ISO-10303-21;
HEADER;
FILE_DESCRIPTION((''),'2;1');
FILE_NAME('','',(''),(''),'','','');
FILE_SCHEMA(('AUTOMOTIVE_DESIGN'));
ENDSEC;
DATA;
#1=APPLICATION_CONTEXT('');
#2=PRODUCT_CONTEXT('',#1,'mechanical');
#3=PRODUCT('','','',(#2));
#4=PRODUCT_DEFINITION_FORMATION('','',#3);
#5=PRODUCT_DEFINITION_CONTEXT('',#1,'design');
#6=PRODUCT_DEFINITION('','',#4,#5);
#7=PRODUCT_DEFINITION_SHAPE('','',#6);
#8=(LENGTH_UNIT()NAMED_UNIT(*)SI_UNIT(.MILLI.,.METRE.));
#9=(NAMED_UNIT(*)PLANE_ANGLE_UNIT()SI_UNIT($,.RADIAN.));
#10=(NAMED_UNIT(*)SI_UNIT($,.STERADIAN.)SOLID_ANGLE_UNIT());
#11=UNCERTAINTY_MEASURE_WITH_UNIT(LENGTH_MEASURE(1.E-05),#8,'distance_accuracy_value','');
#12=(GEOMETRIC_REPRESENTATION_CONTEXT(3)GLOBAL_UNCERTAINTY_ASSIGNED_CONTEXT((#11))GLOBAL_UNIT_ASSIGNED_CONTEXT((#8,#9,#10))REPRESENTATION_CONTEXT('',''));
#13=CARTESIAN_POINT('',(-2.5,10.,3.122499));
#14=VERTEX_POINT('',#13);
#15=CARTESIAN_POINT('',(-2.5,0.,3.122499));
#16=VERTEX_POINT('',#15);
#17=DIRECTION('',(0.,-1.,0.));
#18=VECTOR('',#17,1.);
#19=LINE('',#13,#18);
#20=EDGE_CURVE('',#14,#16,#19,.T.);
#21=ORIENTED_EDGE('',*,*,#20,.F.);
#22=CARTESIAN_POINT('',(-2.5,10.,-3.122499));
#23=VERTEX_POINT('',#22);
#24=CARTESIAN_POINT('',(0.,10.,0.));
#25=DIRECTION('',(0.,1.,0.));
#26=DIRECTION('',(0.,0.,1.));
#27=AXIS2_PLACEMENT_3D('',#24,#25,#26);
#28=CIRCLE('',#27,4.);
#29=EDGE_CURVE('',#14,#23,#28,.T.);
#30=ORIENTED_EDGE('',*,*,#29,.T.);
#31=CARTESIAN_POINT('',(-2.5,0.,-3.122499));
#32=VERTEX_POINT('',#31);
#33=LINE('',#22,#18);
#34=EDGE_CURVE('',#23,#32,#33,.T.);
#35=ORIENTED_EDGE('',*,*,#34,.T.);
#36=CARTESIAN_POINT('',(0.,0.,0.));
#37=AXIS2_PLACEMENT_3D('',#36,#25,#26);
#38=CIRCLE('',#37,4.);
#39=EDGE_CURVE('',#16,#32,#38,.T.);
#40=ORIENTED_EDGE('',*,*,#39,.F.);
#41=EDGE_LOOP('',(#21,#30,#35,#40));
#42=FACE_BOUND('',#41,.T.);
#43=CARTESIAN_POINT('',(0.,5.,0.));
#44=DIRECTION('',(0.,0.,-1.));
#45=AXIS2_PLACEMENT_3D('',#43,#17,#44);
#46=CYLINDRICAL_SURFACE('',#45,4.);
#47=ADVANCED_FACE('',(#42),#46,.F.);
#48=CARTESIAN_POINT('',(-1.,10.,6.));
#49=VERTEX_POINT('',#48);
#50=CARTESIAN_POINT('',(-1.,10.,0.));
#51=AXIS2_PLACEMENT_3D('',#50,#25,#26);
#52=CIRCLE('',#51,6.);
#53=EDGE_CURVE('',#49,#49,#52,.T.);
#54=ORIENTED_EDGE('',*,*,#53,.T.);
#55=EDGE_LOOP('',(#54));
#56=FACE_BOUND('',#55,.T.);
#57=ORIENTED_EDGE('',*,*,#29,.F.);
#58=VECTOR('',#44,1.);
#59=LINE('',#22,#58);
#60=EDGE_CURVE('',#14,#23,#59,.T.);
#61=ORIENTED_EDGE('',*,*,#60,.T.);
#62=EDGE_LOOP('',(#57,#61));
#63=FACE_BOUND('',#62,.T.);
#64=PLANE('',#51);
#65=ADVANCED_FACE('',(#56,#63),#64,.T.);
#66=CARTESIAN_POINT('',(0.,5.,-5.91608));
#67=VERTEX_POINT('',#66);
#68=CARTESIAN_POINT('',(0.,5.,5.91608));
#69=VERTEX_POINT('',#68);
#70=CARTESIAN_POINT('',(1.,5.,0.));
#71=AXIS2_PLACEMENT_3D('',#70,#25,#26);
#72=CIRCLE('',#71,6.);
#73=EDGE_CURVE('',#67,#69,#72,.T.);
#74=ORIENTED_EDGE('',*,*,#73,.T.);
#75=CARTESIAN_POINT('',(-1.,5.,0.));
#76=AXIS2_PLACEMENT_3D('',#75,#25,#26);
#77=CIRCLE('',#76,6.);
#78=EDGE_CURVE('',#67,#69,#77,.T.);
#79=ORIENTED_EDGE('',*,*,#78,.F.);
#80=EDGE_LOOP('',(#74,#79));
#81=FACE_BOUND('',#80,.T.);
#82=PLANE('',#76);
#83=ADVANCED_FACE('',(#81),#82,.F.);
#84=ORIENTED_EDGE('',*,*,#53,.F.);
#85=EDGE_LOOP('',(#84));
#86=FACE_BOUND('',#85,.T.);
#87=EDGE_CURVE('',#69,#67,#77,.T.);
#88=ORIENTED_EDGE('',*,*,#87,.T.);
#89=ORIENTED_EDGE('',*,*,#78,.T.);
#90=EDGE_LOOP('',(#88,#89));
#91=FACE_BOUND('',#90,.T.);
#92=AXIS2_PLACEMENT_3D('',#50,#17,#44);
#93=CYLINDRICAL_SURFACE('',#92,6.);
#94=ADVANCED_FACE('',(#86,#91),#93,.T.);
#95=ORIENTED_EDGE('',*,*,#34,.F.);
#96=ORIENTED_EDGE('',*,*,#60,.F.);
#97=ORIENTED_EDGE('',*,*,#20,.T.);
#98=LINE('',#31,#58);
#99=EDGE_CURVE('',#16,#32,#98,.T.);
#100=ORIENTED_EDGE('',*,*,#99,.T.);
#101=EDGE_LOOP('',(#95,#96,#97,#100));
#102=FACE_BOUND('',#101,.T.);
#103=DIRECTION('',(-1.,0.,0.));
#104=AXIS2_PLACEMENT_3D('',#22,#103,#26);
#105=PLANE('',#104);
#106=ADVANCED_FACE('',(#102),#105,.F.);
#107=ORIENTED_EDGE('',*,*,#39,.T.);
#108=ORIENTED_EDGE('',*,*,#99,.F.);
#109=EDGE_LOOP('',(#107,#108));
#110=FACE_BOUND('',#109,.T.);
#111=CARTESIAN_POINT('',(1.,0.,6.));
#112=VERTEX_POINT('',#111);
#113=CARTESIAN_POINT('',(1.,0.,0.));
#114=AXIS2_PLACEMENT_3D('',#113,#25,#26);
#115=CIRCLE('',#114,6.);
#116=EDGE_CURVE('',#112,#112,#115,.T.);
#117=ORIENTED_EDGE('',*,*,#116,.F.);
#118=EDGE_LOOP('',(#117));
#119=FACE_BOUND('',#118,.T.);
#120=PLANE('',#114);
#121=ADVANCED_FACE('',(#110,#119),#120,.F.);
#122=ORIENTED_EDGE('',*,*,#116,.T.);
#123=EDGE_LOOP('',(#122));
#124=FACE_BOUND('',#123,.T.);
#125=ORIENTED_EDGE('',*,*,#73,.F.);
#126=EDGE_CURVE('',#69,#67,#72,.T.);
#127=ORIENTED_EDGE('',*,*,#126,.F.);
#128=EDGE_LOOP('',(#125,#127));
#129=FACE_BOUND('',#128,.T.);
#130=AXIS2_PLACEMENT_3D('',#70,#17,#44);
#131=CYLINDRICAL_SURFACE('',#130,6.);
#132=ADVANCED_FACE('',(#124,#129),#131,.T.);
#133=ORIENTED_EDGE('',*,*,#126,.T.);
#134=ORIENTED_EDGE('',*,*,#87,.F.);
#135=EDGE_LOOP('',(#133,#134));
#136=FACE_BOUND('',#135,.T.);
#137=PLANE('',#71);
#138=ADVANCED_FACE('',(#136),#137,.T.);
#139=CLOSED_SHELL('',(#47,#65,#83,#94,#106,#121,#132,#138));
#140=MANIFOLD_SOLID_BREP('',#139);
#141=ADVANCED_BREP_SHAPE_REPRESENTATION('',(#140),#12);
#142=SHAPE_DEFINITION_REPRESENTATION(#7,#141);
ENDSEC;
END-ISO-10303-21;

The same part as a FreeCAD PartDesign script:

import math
import FreeCAD as App
import Part
import Sketcher

doc = App.newDocument("Part")
body = doc.addObject("PartDesign::Body", "Body")

# Sketch on XZ plane
sketch1 = body.newObject("Sketcher::SketchObject", "Sketch")
sketch1.AttachmentSupport = (doc.getObject("XZ_Plane"), [""])
sketch1.MapMode = "FlatFace"
sketch1.addGeometry([
    Part.Circle(App.Vector(1, 0, 0), App.Vector(0, 0, 1), 6),
    Part.Circle(App.Vector(0, 0, 0), App.Vector(0, 0, 1), 4),
], False)
sketch1.addConstraint([
    Sketcher.Constraint("Coincident", 1, 3, -1, 1),
    Sketcher.Constraint("PointOnObject", 0, 3, -1),
    Sketcher.Constraint("Diameter", 0, 12.0),
    Sketcher.Constraint("Diameter", 1, 8.0),
    Sketcher.Constraint("DistanceX", -1, 1, 0, 3, 1.0),
])
pad1 = body.newObject("PartDesign::Pad", "Pad")
pad1.Profile = sketch1
pad1.Length = 5
pad1.Reversed = True

# Sketch on XZ plane
sketch2 = body.newObject("Sketcher::SketchObject", "Sketch001")
sketch2.AttachmentSupport = (doc.getObject("XZ_Plane"), [""])
sketch2.MapMode = "FlatFace"
sketch2.AttachmentOffset = App.Placement(App.Vector(0, 0, -5), App.Rotation())
sketch2.addGeometry([
    Part.Circle(App.Vector(-1, 0, 0), App.Vector(0, 0, 1), 6),
    Part.Circle(App.Vector(0, 0, 0), App.Vector(0, 0, 1), 4),
], False)
sketch2.addConstraint([
    Sketcher.Constraint("Coincident", 1, 3, -1, 1),
    Sketcher.Constraint("PointOnObject", 0, 3, -1),
    Sketcher.Constraint("Diameter", 0, 12.0),
    Sketcher.Constraint("Diameter", 1, 8.0),
    Sketcher.Constraint("DistanceX", 0, 3, -1, 1, 1.0),
])
pad2 = body.newObject("PartDesign::Pad", "Pad001")
pad2.Profile = sketch2
pad2.Length = 5
pad2.Reversed = True

# Sketch on XZ plane
sketch3 = body.newObject("Sketcher::SketchObject", "Sketch002")
sketch3.AttachmentSupport = (doc.getObject("XZ_Plane"), [""])
sketch3.MapMode = "FlatFace"
sketch3.addGeometry([
    Part.LineSegment(App.Vector(-2.5, 3.1, 0), App.Vector(-2.5, -3.1, 0)),
    Part.ArcOfCircle(Part.Circle(App.Vector(0, 0, 0), App.Vector(0, 0, 1), 4), math.radians(129), math.radians(231)),
], False)
sketch3.addConstraint([
    Sketcher.Constraint("Coincident", 0, 1, 1, 1),
    Sketcher.Constraint("Coincident", 1, 2, 0, 2),
    Sketcher.Constraint("Vertical", 0),
    Sketcher.Constraint("Coincident", 1, 3, -1, 1),
    Sketcher.Constraint("Radius", 1, 4.0),
    Sketcher.Constraint("DistanceX", 0, 1, -1, 1, 2.5),
])
pad3 = body.newObject("PartDesign::Pad", "Pad002")
pad3.Profile = sketch3
pad3.Length = 10
pad3.Reversed = True

doc.recompute()
